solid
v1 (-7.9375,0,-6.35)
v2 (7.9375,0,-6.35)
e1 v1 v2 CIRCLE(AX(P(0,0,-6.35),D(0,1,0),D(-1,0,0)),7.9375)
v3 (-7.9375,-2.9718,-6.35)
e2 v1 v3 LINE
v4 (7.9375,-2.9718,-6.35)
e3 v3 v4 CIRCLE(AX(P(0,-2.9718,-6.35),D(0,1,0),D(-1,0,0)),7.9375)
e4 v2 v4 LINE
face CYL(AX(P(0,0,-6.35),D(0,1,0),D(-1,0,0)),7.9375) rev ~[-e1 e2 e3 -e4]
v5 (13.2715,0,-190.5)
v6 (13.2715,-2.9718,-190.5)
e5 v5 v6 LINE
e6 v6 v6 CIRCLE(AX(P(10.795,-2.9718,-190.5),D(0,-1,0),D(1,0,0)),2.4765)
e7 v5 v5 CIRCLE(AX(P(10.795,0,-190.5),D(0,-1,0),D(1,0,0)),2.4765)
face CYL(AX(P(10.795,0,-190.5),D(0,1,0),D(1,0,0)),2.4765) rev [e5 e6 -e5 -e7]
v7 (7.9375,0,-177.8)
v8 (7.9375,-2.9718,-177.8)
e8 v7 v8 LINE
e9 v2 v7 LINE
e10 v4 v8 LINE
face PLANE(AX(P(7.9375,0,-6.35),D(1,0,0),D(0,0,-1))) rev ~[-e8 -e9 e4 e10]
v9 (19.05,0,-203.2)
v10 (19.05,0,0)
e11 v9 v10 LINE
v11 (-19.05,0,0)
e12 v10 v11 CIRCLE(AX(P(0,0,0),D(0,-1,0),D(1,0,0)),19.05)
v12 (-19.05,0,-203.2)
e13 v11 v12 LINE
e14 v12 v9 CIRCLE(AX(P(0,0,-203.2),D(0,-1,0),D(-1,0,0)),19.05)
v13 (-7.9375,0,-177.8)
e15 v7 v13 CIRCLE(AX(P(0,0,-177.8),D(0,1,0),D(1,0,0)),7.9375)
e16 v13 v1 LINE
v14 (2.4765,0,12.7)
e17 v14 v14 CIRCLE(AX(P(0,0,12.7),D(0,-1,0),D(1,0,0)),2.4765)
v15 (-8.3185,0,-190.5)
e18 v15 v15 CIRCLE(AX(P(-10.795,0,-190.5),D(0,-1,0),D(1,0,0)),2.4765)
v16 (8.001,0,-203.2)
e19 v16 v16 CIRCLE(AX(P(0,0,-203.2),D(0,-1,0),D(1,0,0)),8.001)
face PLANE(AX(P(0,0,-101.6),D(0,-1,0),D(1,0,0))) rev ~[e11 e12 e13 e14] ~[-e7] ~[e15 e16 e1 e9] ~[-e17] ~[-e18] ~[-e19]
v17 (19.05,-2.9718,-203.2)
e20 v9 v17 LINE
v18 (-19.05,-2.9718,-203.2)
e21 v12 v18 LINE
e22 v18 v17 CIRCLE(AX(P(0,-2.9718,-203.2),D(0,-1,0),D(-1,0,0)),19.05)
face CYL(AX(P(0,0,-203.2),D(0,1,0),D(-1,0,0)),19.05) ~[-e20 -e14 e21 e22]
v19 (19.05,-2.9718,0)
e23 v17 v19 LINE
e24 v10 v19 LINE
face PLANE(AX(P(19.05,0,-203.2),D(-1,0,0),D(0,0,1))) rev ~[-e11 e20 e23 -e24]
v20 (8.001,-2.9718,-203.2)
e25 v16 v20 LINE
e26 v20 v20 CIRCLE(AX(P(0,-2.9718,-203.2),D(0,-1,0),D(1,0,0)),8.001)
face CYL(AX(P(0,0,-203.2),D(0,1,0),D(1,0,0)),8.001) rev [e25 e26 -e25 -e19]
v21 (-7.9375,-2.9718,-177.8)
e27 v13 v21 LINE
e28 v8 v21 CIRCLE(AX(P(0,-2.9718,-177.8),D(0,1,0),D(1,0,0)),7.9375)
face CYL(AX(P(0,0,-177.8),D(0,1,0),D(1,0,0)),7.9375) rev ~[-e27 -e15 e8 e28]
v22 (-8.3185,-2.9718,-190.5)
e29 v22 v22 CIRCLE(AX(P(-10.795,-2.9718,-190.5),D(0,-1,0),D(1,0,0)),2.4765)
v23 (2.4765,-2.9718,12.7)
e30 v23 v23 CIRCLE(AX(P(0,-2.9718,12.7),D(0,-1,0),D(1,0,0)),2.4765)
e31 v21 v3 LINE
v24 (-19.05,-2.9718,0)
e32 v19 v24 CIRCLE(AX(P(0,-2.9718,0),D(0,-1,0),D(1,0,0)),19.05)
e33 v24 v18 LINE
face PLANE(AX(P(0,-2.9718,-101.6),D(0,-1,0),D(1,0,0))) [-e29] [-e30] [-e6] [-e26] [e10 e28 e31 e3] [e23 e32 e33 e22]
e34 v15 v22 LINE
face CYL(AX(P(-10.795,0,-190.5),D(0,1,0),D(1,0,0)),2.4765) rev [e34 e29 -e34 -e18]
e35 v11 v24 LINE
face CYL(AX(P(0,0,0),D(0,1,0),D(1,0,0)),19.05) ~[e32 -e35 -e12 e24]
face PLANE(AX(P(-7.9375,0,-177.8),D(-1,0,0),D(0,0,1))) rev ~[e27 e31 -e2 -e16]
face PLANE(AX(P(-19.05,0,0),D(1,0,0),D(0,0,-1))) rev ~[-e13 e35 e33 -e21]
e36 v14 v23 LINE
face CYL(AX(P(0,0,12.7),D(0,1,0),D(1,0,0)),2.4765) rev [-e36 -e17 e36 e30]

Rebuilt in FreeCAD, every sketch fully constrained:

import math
import FreeCAD as App
import Part
import Sketcher
Q = App.Units.Quantity

doc = App.newDocument("Part")
body = doc.addObject("PartDesign::Body", "Body")

# Sketch on XZ plane
sketch1 = body.newObject("Sketcher::SketchObject", "Sketch")
sketch1.AttachmentSupport = (doc.getObject("XZ_Plane"), [""])
sketch1.MapMode = "FlatFace"
sketch1.addGeometry([
    Part.LineSegment(App.Vector(-19.1, 0, 0), App.Vector(-19.1, -203.2, 0)),  # 0
    Part.ArcOfCircle(Part.Circle(App.Vector(0, -203.2, 0), App.Vector(0, 0, 1), 19.1), math.radians(180), math.radians(360)),  # 1
    Part.LineSegment(App.Vector(19.1, -203.2, 0), App.Vector(19.1, 0, 0)),  # 2
    Part.ArcOfCircle(Part.Circle(App.Vector(0, 0, 0), App.Vector(0, 0, 1), 19.1), math.radians(0), math.radians(180)),  # 3
    Part.Circle(App.Vector(-10.8, -190.5, 0), App.Vector(0, 0, 1), 2.5),  # 4
    Part.Circle(App.Vector(0, -203.2, 0), App.Vector(0, 0, 1), 8),  # 5
    Part.Circle(App.Vector(10.8, -190.5, 0), App.Vector(0, 0, 1), 2.5),  # 6
    Part.LineSegment(App.Vector(7.9, -6.3, 0), App.Vector(7.9, -177.8, 0)),  # 7
    Part.ArcOfCircle(Part.Circle(App.Vector(0, -177.8, 0), App.Vector(0, 0, 1), 7.9), math.radians(180), math.radians(360)),  # 8
    Part.LineSegment(App.Vector(-7.9, -177.8, 0), App.Vector(-7.9, -6.3, 0)),  # 9
    Part.ArcOfCircle(Part.Circle(App.Vector(0, -6.3, 0), App.Vector(0, 0, 1), 7.9), math.radians(0), math.radians(180)),  # 10
    Part.Circle(App.Vector(0, 12.7, 0), App.Vector(0, 0, 1), 2.5),  # 11
], False)
sketch1.addConstraint([
    Sketcher.Constraint("Tangent", 0, 2, 1, 1),
    Sketcher.Constraint("Tangent", 1, 2, 2, 1),
    Sketcher.Constraint("Tangent", 2, 2, 3, 1),
    Sketcher.Constraint("Tangent", 3, 2, 0, 1),
    Sketcher.Constraint("Tangent", 7, 2, 8, 2),
    Sketcher.Constraint("Tangent", 8, 1, 9, 1),
    Sketcher.Constraint("Tangent", 9, 2, 10, 2),
    Sketcher.Constraint("Tangent", 10, 1, 7, 1),
    Sketcher.Constraint("Vertical", 0),
    Sketcher.Constraint("Vertical", 2),
    Sketcher.Constraint("Vertical", 7),
    Sketcher.Constraint("Vertical", 9),
    Sketcher.Constraint("Coincident", 3, 3, -1, 1),
    Sketcher.Constraint("Coincident", 5, 3, 1, 3),
    Sketcher.Constraint("Equal", 4, 6),
    Sketcher.Constraint("Equal", 6, 11),
    Sketcher.Constraint("Symmetric", 4, 3, 6, 3, -2),
    Sketcher.Constraint("PointOnObject", 8, 3, -2),
    Sketcher.Constraint("PointOnObject", 11, 3, -2),
    Sketcher.Constraint("Diameter", 5, Q("0.63 in")),
    Sketcher.Constraint("DistanceY", 0, 2, 0, 1, Q("8 in")),
    Sketcher.Constraint("Radius", 1, Q("0.75 in")),
    Sketcher.Constraint("Diameter", 4, Q("0.195 in")),
    Sketcher.Constraint("DistanceY", 8, 3, -1, 1, Q("7 in")),
    Sketcher.Constraint("Radius", 8, Q("0.3125 in")),
    Sketcher.Constraint("DistanceY", 4, 3, 11, 3, Q("8 in")),
    Sketcher.Constraint("DistanceY", 7, 2, 7, 1, Q("6.75 in")),
    Sketcher.Constraint("DistanceY", 4, 3, -1, 1, Q("7.5 in")),
    Sketcher.Constraint("DistanceX", 4, 3, 6, 3, Q("0.85 in")),
])
pad1 = body.newObject("PartDesign::Pad", "Pad")
pad1.Profile = sketch1
pad1.Length = Q("0.117 in")

doc.recompute()
